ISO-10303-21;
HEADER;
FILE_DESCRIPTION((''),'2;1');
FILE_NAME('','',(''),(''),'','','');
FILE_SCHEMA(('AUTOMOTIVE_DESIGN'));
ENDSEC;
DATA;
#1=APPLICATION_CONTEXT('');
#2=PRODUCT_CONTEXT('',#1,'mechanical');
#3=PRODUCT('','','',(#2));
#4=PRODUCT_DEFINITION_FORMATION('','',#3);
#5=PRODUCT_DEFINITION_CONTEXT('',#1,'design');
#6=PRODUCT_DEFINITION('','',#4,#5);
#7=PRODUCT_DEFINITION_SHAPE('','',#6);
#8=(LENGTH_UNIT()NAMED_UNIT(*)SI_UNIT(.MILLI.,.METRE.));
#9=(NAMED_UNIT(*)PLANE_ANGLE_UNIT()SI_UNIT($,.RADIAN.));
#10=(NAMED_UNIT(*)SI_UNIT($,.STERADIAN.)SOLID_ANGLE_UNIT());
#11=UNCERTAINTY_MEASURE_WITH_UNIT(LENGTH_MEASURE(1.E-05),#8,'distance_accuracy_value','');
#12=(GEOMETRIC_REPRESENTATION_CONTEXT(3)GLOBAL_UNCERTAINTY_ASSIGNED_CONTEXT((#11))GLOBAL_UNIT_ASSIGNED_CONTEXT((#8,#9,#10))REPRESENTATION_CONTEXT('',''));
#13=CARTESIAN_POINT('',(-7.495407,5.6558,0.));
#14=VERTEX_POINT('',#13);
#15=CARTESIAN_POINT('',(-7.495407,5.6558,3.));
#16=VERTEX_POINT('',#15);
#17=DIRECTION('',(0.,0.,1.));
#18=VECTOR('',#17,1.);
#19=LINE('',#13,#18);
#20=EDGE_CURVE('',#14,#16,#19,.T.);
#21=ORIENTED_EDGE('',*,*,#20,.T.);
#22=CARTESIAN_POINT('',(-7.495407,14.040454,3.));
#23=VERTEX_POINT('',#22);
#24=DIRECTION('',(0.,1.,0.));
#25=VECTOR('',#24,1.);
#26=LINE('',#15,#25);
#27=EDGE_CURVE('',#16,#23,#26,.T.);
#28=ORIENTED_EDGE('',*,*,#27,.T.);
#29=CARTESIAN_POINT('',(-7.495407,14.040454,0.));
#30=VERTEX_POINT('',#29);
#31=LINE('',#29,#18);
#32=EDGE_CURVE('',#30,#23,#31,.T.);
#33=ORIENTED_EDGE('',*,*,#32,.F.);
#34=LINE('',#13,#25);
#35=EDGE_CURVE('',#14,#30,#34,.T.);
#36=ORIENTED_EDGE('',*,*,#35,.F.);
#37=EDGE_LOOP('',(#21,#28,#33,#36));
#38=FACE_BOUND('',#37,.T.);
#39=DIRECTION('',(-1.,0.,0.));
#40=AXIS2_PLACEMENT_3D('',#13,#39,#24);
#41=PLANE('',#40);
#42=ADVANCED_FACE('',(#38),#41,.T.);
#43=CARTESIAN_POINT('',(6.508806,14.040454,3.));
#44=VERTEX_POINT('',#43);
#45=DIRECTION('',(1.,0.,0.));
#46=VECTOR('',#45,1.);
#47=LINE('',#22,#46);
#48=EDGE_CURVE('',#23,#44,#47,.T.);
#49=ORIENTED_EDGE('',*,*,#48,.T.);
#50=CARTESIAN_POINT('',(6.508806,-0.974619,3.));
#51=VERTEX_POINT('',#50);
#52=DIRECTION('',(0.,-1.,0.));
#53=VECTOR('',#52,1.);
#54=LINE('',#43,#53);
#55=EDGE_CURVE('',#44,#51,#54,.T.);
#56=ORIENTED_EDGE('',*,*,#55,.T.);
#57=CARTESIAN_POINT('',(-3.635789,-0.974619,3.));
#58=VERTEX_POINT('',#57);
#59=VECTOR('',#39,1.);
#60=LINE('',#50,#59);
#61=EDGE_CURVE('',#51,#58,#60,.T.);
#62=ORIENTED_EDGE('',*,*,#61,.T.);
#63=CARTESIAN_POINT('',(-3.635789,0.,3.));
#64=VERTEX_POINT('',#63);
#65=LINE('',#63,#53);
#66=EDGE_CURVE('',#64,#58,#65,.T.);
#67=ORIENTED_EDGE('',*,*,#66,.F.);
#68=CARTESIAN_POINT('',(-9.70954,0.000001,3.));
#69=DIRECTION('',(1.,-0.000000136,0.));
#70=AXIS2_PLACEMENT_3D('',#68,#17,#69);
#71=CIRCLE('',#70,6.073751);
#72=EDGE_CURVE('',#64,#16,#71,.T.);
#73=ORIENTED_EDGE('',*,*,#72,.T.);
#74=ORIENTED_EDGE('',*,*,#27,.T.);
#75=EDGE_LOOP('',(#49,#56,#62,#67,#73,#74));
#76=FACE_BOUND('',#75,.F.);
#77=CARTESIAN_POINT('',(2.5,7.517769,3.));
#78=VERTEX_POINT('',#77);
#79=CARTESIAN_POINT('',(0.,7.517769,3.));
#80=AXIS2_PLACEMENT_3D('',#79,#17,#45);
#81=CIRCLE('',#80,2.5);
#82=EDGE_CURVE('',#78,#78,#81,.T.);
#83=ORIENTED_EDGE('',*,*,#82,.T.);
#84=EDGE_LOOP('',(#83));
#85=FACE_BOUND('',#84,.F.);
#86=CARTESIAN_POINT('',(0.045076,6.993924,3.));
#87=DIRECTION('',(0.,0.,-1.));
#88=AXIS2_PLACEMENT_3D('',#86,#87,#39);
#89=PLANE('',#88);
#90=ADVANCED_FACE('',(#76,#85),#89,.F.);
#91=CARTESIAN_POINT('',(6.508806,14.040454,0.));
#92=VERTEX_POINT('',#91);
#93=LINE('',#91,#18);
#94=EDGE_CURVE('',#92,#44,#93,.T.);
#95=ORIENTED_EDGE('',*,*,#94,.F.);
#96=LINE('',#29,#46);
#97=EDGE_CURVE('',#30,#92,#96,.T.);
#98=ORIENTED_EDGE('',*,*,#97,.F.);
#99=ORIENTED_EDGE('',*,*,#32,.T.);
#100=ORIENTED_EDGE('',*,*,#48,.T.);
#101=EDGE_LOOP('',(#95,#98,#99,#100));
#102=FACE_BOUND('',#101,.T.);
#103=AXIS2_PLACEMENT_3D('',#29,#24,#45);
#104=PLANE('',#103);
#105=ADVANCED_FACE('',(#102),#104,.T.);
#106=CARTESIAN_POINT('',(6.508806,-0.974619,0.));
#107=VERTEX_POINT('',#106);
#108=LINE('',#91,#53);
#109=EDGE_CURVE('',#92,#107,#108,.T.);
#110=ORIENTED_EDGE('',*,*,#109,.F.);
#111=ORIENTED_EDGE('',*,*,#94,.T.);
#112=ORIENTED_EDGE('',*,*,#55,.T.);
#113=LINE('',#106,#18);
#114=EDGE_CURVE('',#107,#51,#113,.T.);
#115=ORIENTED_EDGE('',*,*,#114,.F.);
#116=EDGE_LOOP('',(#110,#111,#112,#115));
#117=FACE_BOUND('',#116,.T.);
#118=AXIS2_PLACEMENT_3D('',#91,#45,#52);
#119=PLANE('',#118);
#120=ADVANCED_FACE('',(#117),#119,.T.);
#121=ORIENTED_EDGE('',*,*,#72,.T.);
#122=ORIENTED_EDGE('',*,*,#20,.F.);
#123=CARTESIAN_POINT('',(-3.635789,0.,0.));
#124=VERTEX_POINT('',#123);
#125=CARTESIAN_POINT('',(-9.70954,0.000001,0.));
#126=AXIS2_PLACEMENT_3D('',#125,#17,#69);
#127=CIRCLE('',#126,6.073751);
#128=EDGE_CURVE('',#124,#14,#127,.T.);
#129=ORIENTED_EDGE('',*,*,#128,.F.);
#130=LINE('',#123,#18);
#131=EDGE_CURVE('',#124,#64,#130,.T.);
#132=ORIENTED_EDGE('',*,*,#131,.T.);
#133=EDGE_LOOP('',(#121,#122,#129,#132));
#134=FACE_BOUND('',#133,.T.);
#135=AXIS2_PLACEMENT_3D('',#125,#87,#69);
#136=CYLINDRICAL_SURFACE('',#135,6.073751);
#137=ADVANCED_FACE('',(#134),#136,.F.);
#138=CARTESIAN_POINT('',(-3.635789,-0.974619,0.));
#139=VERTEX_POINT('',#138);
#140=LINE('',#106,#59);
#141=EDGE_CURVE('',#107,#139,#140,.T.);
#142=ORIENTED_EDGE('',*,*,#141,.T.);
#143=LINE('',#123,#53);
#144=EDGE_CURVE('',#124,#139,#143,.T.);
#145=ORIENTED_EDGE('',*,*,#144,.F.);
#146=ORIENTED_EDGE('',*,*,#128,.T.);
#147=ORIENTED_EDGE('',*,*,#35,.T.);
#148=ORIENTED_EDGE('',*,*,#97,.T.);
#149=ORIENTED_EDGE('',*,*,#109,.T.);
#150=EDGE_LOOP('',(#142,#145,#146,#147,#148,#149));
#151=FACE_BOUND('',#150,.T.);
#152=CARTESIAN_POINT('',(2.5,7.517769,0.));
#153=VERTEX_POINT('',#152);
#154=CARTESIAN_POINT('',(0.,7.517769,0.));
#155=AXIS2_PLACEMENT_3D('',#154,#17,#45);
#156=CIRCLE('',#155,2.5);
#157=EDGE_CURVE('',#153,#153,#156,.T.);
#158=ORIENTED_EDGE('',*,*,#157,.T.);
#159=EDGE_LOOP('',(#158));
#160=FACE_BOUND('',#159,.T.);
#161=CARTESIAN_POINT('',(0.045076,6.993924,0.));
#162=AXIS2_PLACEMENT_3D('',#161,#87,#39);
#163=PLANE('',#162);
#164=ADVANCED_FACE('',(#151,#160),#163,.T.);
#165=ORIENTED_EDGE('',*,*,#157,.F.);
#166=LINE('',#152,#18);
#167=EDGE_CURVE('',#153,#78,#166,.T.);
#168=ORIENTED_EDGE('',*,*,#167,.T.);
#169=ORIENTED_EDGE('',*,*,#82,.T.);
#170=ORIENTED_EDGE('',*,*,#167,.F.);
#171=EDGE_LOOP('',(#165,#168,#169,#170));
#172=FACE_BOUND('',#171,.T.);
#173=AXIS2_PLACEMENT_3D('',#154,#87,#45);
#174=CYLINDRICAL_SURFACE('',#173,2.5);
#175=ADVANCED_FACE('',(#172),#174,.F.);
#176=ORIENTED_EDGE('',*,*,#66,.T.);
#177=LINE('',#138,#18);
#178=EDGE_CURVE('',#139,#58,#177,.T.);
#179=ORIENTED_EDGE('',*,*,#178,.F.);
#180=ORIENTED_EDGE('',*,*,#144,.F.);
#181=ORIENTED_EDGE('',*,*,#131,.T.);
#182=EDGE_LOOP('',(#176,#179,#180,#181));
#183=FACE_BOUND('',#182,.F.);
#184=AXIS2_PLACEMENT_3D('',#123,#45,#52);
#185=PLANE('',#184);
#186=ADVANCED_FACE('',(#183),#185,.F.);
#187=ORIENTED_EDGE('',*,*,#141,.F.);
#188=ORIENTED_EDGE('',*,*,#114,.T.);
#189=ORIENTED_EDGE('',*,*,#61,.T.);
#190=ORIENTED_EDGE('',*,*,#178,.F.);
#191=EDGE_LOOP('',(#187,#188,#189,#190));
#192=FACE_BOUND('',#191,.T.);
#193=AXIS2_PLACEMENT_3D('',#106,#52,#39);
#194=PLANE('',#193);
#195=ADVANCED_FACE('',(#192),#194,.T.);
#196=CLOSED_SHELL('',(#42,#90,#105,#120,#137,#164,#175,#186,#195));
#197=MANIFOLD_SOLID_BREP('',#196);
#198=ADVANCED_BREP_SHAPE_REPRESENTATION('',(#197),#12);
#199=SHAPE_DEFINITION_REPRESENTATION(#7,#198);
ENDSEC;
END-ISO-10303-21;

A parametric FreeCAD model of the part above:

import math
import FreeCAD as App
import Part
import Sketcher

V = App.Vector
Q = App.Units.Quantity

doc = App.newDocument("Part")
body = doc.addObject("PartDesign::Body", "Body")

# Sketch on XY plane
sketch1 = body.newObject("Sketcher::SketchObject", "Sketch")
sketch1.AttachmentSupport = (doc.getObject("XY_Plane"), [""])
sketch1.MapMode = "FlatFace"
sketch1.addGeometry([
    Part.LineSegment(V(6.5, 14, 0), V(-7.5, 14, 0)),  # 0
    Part.LineSegment(V(-7.5, 14, 0), V(-7.5, 5.7, 0)),  # 1
    Part.ArcOfCircle(Part.Circle(V(-9.7, 0, 0), V(0, 0, 1), 6.1), math.radians(0), math.radians(69)),  # 2
    Part.LineSegment(V(-3.6, 0, 0), V(-3.6, -1, 0)),  # 3
    Part.LineSegment(V(-3.6, -1, 0), V(6.5, -1, 0)),  # 4
    Part.LineSegment(V(6.5, -1, 0), V(6.5, 14, 0)),  # 5
    Part.Circle(V(0, 7.5, 0), V(0, 0, 1), 2.5),  # 6
], False)
sketch1.addConstraint([
    Sketcher.Constraint("Coincident", 0, 2, 1, 1),
    Sketcher.Constraint("Coincident", 1, 2, 2, 2),
    Sketcher.Constraint("Tangent", 2, 1, 3, 1),
    Sketcher.Constraint("Coincident", 3, 2, 4, 1),
    Sketcher.Constraint("Coincident", 4, 2, 5, 1),
    Sketcher.Constraint("Coincident", 5, 2, 0, 1),
    Sketcher.Constraint("Horizontal", 0),
    Sketcher.Constraint("Vertical", 1),
    Sketcher.Constraint("Vertical", 3),
    Sketcher.Constraint("Horizontal", 4),
    Sketcher.Constraint("Vertical", 5),
    Sketcher.Constraint("PointOnObject", 2, 3, -1),
    Sketcher.Constraint("PointOnObject", 6, 3, -2),
    Sketcher.Constraint("Diameter", 6, Q("5 mm")),
    Sketcher.Constraint("Radius", 2, Q("6.073751 mm")),
    Sketcher.Constraint("DistanceY", 3, 2, 3, 1, Q("0.974619 mm")),
    Sketcher.Constraint("DistanceY", -1, 1, 1, 2, Q("5.6558 mm")),
    Sketcher.Constraint("DistanceX", 0, 2, 0, 1, Q("14.004213 mm")),
    Sketcher.Constraint("DistanceY", 1, 2, 1, 1, Q("8.384654 mm")),
    Sketcher.Constraint("DistanceX", 2, 3, -1, 1, Q("9.70954 mm")),
    Sketcher.Constraint("DistanceY", -1, 1, 6, 3, Q("7.517769 mm")),
])
pad1 = body.newObject("PartDesign::Pad", "Pad")
pad1.Profile = sketch1
pad1.Length = 3

doc.recompute()
